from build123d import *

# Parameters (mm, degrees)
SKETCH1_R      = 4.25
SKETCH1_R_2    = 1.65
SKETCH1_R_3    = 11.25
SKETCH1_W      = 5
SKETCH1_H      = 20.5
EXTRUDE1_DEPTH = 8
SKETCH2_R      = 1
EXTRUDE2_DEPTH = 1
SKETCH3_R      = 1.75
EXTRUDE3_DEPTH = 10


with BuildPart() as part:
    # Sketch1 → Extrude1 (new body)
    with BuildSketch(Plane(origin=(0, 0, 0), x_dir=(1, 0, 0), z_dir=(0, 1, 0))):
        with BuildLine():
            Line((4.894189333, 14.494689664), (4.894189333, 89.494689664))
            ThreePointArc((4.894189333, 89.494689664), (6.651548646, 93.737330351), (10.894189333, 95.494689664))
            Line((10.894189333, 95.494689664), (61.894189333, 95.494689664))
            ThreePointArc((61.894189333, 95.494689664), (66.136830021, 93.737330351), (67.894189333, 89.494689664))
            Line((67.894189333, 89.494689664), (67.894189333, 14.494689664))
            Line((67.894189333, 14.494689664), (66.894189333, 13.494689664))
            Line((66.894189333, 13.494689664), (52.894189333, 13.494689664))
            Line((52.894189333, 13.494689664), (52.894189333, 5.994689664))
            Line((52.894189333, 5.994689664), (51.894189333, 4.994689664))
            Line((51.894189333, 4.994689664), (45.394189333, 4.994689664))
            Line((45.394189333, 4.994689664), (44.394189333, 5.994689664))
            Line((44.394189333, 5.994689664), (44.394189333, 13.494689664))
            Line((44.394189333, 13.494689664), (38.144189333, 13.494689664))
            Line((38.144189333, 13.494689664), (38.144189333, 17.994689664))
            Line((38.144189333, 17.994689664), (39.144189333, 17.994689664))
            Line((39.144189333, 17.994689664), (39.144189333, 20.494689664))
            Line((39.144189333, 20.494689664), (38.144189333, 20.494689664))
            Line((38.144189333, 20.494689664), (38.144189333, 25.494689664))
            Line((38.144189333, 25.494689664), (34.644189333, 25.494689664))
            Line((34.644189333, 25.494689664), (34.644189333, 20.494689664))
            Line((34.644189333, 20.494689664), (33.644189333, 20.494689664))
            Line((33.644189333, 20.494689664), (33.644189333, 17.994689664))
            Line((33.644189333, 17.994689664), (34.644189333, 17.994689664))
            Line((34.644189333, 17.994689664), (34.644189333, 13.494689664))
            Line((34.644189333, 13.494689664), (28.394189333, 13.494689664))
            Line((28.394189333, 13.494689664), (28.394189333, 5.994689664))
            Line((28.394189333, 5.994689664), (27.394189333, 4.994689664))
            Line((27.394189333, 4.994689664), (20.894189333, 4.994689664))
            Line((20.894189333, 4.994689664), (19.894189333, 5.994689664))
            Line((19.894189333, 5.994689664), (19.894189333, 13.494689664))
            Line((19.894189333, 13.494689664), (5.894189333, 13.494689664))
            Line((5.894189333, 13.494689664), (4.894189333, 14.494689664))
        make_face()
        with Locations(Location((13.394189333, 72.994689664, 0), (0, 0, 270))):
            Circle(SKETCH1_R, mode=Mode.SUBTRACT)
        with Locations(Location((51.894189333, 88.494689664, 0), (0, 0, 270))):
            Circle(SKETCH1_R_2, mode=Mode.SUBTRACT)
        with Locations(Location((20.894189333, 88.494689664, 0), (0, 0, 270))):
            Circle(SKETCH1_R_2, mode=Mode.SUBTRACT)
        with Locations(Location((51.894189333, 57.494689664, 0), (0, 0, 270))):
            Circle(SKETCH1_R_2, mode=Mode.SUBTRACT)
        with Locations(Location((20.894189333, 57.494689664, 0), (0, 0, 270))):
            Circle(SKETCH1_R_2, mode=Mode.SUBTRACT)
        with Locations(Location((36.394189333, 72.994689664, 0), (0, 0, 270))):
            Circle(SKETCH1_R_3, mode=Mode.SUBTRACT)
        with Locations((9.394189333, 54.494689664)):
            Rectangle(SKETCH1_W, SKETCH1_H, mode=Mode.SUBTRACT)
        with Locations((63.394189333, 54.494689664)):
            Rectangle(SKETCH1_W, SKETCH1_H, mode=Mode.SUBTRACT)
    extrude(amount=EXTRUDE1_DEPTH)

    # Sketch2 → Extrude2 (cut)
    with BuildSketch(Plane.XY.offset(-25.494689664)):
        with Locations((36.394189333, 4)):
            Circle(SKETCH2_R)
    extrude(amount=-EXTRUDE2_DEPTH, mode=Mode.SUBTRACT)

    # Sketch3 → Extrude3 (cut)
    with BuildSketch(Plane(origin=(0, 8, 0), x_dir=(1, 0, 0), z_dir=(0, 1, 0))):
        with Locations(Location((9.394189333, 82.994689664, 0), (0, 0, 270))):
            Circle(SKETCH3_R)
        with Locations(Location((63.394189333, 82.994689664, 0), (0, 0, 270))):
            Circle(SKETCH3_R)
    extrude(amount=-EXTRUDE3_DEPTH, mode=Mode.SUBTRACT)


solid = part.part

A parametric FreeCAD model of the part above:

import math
import FreeCAD as App
import Part
import Sketcher

V = App.Vector
Q = App.Units.Quantity

doc = App.newDocument("Part")
params = doc.addObject("Spreadsheet::Sheet", "Params")
for row, (alias, value) in enumerate([
    ("sketch1_radius", "6 mm"),
    ("sketch1_diameter", "3.3 mm"),
    ("sketch1_diameter2", "22.5 mm"),
    ("sketch1_diameter3", "8.5 mm"),
    ("sketch1_width", "14 mm"),
    ("pad1_length", "8 mm"),
    ("sketch2_diameter", "2 mm"),
    ("pocket1_length", "1 mm"),
    ("sketch3_diameter", "3.5 mm"),
    ("pocket2_length", "10 mm"),
], start=1):
    params.set(f"A{row}", alias)
    params.set(f"B{row}", "=" + value)
    params.setAlias(f"B{row}", alias)

body = doc.addObject("PartDesign::Body", "Body")

sketch1 = body.newObject("Sketcher::SketchObject", "Sketch")
sketch1.AttachmentSupport = (doc.getObject("XZ_Plane"), [""])
sketch1.MapMode = "FlatFace"
sketch1.addGeometry([
    Part.LineSegment(V(4.9, -89.5, 0), V(4.9, -14.5, 0)),
    Part.LineSegment(V(4.9, -14.5, 0), V(5.9, -13.5, 0)),
    Part.LineSegment(V(5.9, -13.5, 0), V(19.9, -13.5, 0)),
    Part.LineSegment(V(19.9, -13.5, 0), V(19.9, -6, 0)),
    Part.LineSegment(V(19.9, -6, 0), V(20.9, -5, 0)),
    Part.LineSegment(V(20.9, -5, 0), V(27.4, -5, 0)),
    Part.LineSegment(V(27.4, -5, 0), V(28.4, -6, 0)),
    Part.LineSegment(V(28.4, -6, 0), V(28.4, -13.5, 0)),
    Part.LineSegment(V(28.4, -13.5, 0), V(34.6, -13.5, 0)),
    Part.LineSegment(V(34.6, -13.5, 0), V(34.6, -18, 0)),
    Part.LineSegment(V(34.6, -18, 0), V(33.6, -18, 0)),
    Part.LineSegment(V(33.6, -18, 0), V(33.6, -20.5, 0)),
    Part.LineSegment(V(33.6, -20.5, 0), V(34.6, -20.5, 0)),
    Part.LineSegment(V(34.6, -20.5, 0), V(34.6, -25.5, 0)),
    Part.LineSegment(V(34.6, -25.5, 0), V(38.1, -25.5, 0)),
    Part.LineSegment(V(38.1, -25.5, 0), V(38.1, -20.5, 0)),
    Part.LineSegment(V(38.1, -20.5, 0), V(39.1, -20.5, 0)),
    Part.LineSegment(V(39.1, -20.5, 0), V(39.1, -18, 0)),
    Part.LineSegment(V(39.1, -18, 0), V(38.1, -18, 0)),
    Part.LineSegment(V(38.1, -18, 0), V(38.1, -13.5, 0)),
    Part.LineSegment(V(38.1, -13.5, 0), V(44.4, -13.5, 0)),
    Part.LineSegment(V(44.4, -13.5, 0), V(44.4, -6, 0)),
    Part.LineSegment(V(44.4, -6, 0), V(45.4, -5, 0)),
    Part.LineSegment(V(45.4, -5, 0), V(51.9, -5, 0)),
    Part.LineSegment(V(51.9, -5, 0), V(52.9, -6, 0)),
    Part.LineSegment(V(52.9, -6, 0), V(52.9, -13.5, 0)),
    Part.LineSegment(V(52.9, -13.5, 0), V(66.9, -13.5, 0)),
    Part.LineSegment(V(66.9, -13.5, 0), V(67.9, -14.5, 0)),
    Part.LineSegment(V(67.9, -14.5, 0), V(67.9, -89.5, 0)),
    Part.ArcOfCircle(Part.Circle(V(61.9, -89.5, 0), V(0, 0, 1), 6), math.radians(-90), math.radians(0)),
    Part.LineSegment(V(61.9, -95.5, 0), V(10.9, -95.5, 0)),
    Part.ArcOfCircle(Part.Circle(V(10.9, -89.5, 0), V(0, 0, 1), 6), math.radians(180), math.radians(270)),
    Part.LineSegment(V(60.9, -44.2, 0), V(60.9, -64.7, 0)),
    Part.LineSegment(V(60.9, -64.7, 0), V(65.9, -64.7, 0)),
    Part.LineSegment(V(65.9, -64.7, 0), V(65.9, -44.2, 0)),
    Part.LineSegment(V(65.9, -44.2, 0), V(60.9, -44.2, 0)),
    Part.Circle(V(51.9, -57.5, 0), V(0, 0, 1), 1.6),
    Part.LineSegment(V(6.9, -44.2, 0), V(6.9, -64.7, 0)),
    Part.LineSegment(V(6.9, -64.7, 0), V(11.9, -64.7, 0)),
    Part.LineSegment(V(11.9, -64.7, 0), V(11.9, -44.2, 0)),
    Part.LineSegment(V(11.9, -44.2, 0), V(6.9, -44.2, 0)),
    Part.Circle(V(20.9, -57.5, 0), V(0, 0, 1), 1.6),
    Part.Circle(V(51.9, -88.5, 0), V(0, 0, 1), 1.6),
    Part.Circle(V(36.4, -73, 0), V(0, 0, 1), 11.2),
    Part.Circle(V(13.4, -73, 0), V(0, 0, 1), 4.2),
    Part.Circle(V(20.9, -88.5, 0), V(0, 0, 1), 1.6),
], False)
sketch1.addConstraint([
    Sketcher.Constraint("Coincident", 0, 2, 1, 1),
    Sketcher.Constraint("Coincident", 1, 2, 2, 1),
    Sketcher.Constraint("Coincident", 2, 2, 3, 1),
    Sketcher.Constraint("Coincident", 3, 2, 4, 1),
    Sketcher.Constraint("Coincident", 4, 2, 5, 1),
    Sketcher.Constraint("Coincident", 5, 2, 6, 1),
    Sketcher.Constraint("Coincident", 6, 2, 7, 1),
    Sketcher.Constraint("Coincident", 7, 2, 8, 1),
    Sketcher.Constraint("Coincident", 8, 2, 9, 1),
    Sketcher.Constraint("Coincident", 9, 2, 10, 1),
    Sketcher.Constraint("Coincident", 10, 2, 11, 1),
    Sketcher.Constraint("Coincident", 11, 2, 12, 1),
    Sketcher.Constraint("Coincident", 12, 2, 13, 1),
    Sketcher.Constraint("Coincident", 13, 2, 14, 1),
    Sketcher.Constraint("Coincident", 14, 2, 15, 1),
    Sketcher.Constraint("Coincident", 15, 2, 16, 1),
    Sketcher.Constraint("Coincident", 16, 2, 17, 1),
    Sketcher.Constraint("Coincident", 17, 2, 18, 1),
    Sketcher.Constraint("Coincident", 18, 2, 19, 1),
    Sketcher.Constraint("Coincident", 19, 2, 20, 1),
    Sketcher.Constraint("Coincident", 20, 2, 21, 1),
    Sketcher.Constraint("Coincident", 21, 2, 22, 1),
    Sketcher.Constraint("Coincident", 22, 2, 23, 1),
    Sketcher.Constraint("Coincident", 23, 2, 24, 1),
    Sketcher.Constraint("Coincident", 24, 2, 25, 1),
    Sketcher.Constraint("Coincident", 25, 2, 26, 1),
    Sketcher.Constraint("Coincident", 26, 2, 27, 1),
    Sketcher.Constraint("Coincident", 27, 2, 28, 1),
    Sketcher.Constraint("Tangent", 28, 2, 29, 2),
    Sketcher.Constraint("Tangent", 29, 1, 30, 1),
    Sketcher.Constraint("Tangent", 30, 2, 31, 2),
    Sketcher.Constraint("Tangent", 31, 1, 0, 1),
    Sketcher.Constraint("Coincident", 32, 2, 33, 1),
    Sketcher.Constraint("Coincident", 33, 2, 34, 1),
    Sketcher.Constraint("Coincident", 34, 2, 35, 1),
    Sketcher.Constraint("Coincident", 35, 2, 32, 1),
    Sketcher.Constraint("Coincident", 37, 2, 38, 1),
    Sketcher.Constraint("Coincident", 38, 2, 39, 1),
    Sketcher.Constraint("Coincident", 39, 2, 40, 1),
    Sketcher.Constraint("Coincident", 40, 2, 37, 1),
    Sketcher.Constraint("Vertical", 0),
    Sketcher.Constraint("Horizontal", 2),
    Sketcher.Constraint("Vertical", 3),
    Sketcher.Constraint("Horizontal", 5),
    Sketcher.Constraint("Vertical", 7),
    Sketcher.Constraint("Horizontal", 8),
    Sketcher.Constraint("Vertical", 9),
    Sketcher.Constraint("Horizontal", 10),
    Sketcher.Constraint("Vertical", 11),
    Sketcher.Constraint("Horizontal", 12),
    Sketcher.Constraint("Vertical", 13),
    Sketcher.Constraint("Horizontal", 14),
    Sketcher.Constraint("Vertical", 15),
    Sketcher.Constraint("Horizontal", 16),
    Sketcher.Constraint("Vertical", 17),
    Sketcher.Constraint("Horizontal", 18),
    Sketcher.Constraint("Vertical", 19),
    Sketcher.Constraint("Horizontal", 20),
    Sketcher.Constraint("Vertical", 21),
    Sketcher.Constraint("Horizontal", 23),
    Sketcher.Constraint("Vertical", 25),
    Sketcher.Constraint("Horizontal", 26),
    Sketcher.Constraint("Vertical", 28),
    Sketcher.Constraint("Horizontal", 30),
    Sketcher.Constraint("Vertical", 32),
    Sketcher.Constraint("Horizontal", 33),
    Sketcher.Constraint("Vertical", 34),
    Sketcher.Constraint("Horizontal", 35),
    Sketcher.Constraint("Vertical", 37),
    Sketcher.Constraint("Horizontal", 38),
    Sketcher.Constraint("Vertical", 39),
    Sketcher.Constraint("Horizontal", 40),
    Sketcher.Constraint("Equal", 29, 31),
    Sketcher.Constraint("Equal", 36, 41),
    Sketcher.Constraint("Equal", 41, 42),
    Sketcher.Constraint("Equal", 42, 45),
    Sketcher.Constraint("Parallel", 1, 4),
    Sketcher.Constraint("Perpendicular", 4, 6),
    Sketcher.Constraint("Perpendicular", 6, 22),
    Sketcher.Constraint("Perpendicular", 22, 24),
    Sketcher.Constraint("Parallel", 24, 27),
    Sketcher.Constraint("Horizontal", 36, 3, 41, 3),
    Sketcher.Constraint("Horizontal", 43, 3, 44, 3),
    Sketcher.Constraint("Horizontal", 42, 3, 45, 3),
    Sketcher.Constraint("Horizontal", 3, 2, 6, 2),
    Sketcher.Constraint("Horizontal", 2, 2, 7, 2),
    Sketcher.Constraint("Horizontal", 12, 2, 15, 2),
    Sketcher.Constraint("Horizontal", 10, 2, 17, 2),
    Sketcher.Constraint("Horizontal", 8, 2, 19, 2),
    Sketcher.Constraint("Horizontal", 6, 2, 21, 2),
    Sketcher.Constraint("Horizontal", 5, 2, 22, 2),
    Sketcher.Constraint("Horizontal", 21, 2, 24, 2),
    Sketcher.Constraint("Horizontal", 20, 2, 25, 2),
    Sketcher.Constraint("Horizontal", 0, 2, 27, 2),
    Sketcher.Constraint("Horizontal", 33, 2, 37, 2),
    Sketcher.Constraint("Horizontal", 35, 2, 39, 2),
    Sketcher.Constraint("Vertical", 36, 3, 42, 3),
    Sketcher.Constraint("Vertical", 41, 3, 45, 3),
    Sketcher.Constraint("Vertical", 45, 3, 4, 2),
    Sketcher.Constraint("Vertical", 9, 2, 12, 2),
    Sketcher.Constraint("Vertical", 15, 2, 18, 2),
    Sketcher.Constraint("Vertical", 42, 3, 23, 2),
    Sketcher.Constraint("Equal", 12, 16),
    Sketcher.Constraint("Equal", 8, 20),
    Sketcher.Constraint("Equal", 5, 23),
    Sketcher.Constraint("Equal", 2, 26),
    Sketcher.Constraint("Equal", 35, 38),
    Sketcher.Constraint("Equal", 40, 13),
    Sketcher.Constraint("Equal", 1, 4),
    Sketcher.Constraint("Equal", 4, 6),
    Sketcher.Constraint("Radius", 29, Q("6 mm")),
    Sketcher.Constraint("Diameter", 36, Q("3.3 mm")),
    Sketcher.Constraint("Diameter", 43, Q("22.5 mm")),
    Sketcher.Constraint("Diameter", 44, Q("8.5 mm")),
    Sketcher.Constraint("DistanceX", 2, 1, 2, 2, Q("14 mm")),
    Sketcher.Constraint("DistanceX", 10, 2, 10, 1, Q("1 mm")),
    Sketcher.Constraint("DistanceX", 30, 2, 30, 1, Q("51 mm")),
    Sketcher.Constraint("DistanceX", 33, 1, 33, 2, Q("5 mm")),
    Sketcher.Constraint("DistanceY", 0, 1, 0, 2, Q("75 mm")),
    Sketcher.Constraint("DistanceX", 5, 1, 5, 2, Q("6.5 mm")),
    Sketcher.Constraint("DistanceX", 14, 1, 14, 2, Q("3.5 mm")),
    Sketcher.Constraint("DistanceY", 3, 1, 3, 2, Q("7.5 mm")),
    Sketcher.Constraint("DistanceY", 9, 2, 9, 1, Q("4.5 mm")),
    Sketcher.Constraint("DistanceY", 11, 2, 11, 1, Q("2.5 mm")),
    Sketcher.Constraint("DistanceY", 32, 2, 32, 1, Q("20.5 mm")),
    Sketcher.Constraint("DistanceX", 36, 3, 29, 3, Q("10 mm")),
    Sketcher.Constraint("DistanceY", 29, 3, 36, 3, Q("32 mm")),
    Sketcher.Constraint("DistanceY", 29, 3, 42, 3, Q("1 mm")),
    Sketcher.Constraint("DistanceX", 44, 3, 43, 3, Q("23 mm")),
    Sketcher.Constraint("DistanceX", 36, 3, 32, 2, Q("9 mm")),
    Sketcher.Constraint("DistanceX", 37, 2, 41, 3, Q("14 mm")),
    Sketcher.Constraint("DistanceX", 43, 3, 42, 3, Q("15.5 mm")),
    Sketcher.Constraint("DistanceY", 42, 3, 43, 3, Q("15.5 mm")),
    Sketcher.Constraint("DistanceY", 32, 2, 36, 3, Q("7.25 mm")),
    Sketcher.Constraint("DistanceX", -1, 1, 29, 3, Q("61.894189 mm")),
    Sketcher.Constraint("DistanceY", 29, 3, -1, 1, Q("89.49469 mm")),
])
sketch1.setExpression("Constraints[110]", "Params.sketch1_radius")
sketch1.setExpression("Constraints[111]", "Params.sketch1_diameter")
sketch1.setExpression("Constraints[112]", "Params.sketch1_diameter2")
sketch1.setExpression("Constraints[113]", "Params.sketch1_diameter3")
sketch1.setExpression("Constraints[114]", "Params.sketch1_width")
pad1 = body.newObject("PartDesign::Pad", "Pad")
pad1.Profile = sketch1
pad1.setExpression("Length", "Params.pad1_length")
pad1.Reversed = True

sketch2 = body.newObject("Sketcher::SketchObject", "Sketch001")
sketch2.AttachmentSupport = (doc.getObject("XY_Plane"), [""])
sketch2.MapMode = "FlatFace"
sketch2.AttachmentOffset = App.Placement(V(0, 0, -25.49469), App.Rotation())
sketch2.addGeometry(Part.Circle(V(36.4, 4, 0), V(0, 0, 1), 1), False)
sketch2.addConstraint([
    Sketcher.Constraint("Diameter", 0, Q("2 mm")),
    Sketcher.Constraint("DistanceY", -1, 1, 0, 3, Q("4 mm")),
    Sketcher.Constraint("DistanceX", -1, 1, 0, 3, Q("36.394189 mm")),
])
sketch2.setExpression("Constraints[0]", "Params.sketch2_diameter")
pocket1 = body.newObject("PartDesign::Pocket", "Pocket")
pocket1.Profile = sketch2
pocket1.setExpression("Length", "Params.pocket1_length")

sketch3 = body.newObject("Sketcher::SketchObject", "Sketch002")
sketch3.AttachmentSupport = (doc.getObject("XZ_Plane"), [""])
sketch3.MapMode = "FlatFace"
sketch3.AttachmentOffset = App.Placement(V(0, 0, -8), App.Rotation())
sketch3.addGeometry([
    Part.Circle(V(9.4, -83, 0), V(0, 0, 1), 1.8),
    Part.Circle(V(63.4, -83, 0), V(0, 0, 1), 1.8),
], False)
sketch3.addConstraint([
    Sketcher.Constraint("Equal", 0, 1),
    Sketcher.Constraint("Horizontal", 0, 3, 1, 3),
    Sketcher.Constraint("Diameter", 0, Q("3.5 mm")),
    Sketcher.Constraint("DistanceX", 0, 3, 1, 3, Q("54 mm")),
    Sketcher.Constraint("DistanceX", -1, 1, 0, 3, Q("9.394189 mm")),
    Sketcher.Constraint("DistanceY", 0, 3, -1, 1, Q("82.99469 mm")),
])
sketch3.setExpression("Constraints[2]", "Params.sketch3_diameter")
pocket2 = body.newObject("PartDesign::Pocket", "Pocket001")
pocket2.Profile = sketch3
pocket2.setExpression("Length", "Params.pocket2_length")
pocket2.Reversed = True

doc.recompute()
